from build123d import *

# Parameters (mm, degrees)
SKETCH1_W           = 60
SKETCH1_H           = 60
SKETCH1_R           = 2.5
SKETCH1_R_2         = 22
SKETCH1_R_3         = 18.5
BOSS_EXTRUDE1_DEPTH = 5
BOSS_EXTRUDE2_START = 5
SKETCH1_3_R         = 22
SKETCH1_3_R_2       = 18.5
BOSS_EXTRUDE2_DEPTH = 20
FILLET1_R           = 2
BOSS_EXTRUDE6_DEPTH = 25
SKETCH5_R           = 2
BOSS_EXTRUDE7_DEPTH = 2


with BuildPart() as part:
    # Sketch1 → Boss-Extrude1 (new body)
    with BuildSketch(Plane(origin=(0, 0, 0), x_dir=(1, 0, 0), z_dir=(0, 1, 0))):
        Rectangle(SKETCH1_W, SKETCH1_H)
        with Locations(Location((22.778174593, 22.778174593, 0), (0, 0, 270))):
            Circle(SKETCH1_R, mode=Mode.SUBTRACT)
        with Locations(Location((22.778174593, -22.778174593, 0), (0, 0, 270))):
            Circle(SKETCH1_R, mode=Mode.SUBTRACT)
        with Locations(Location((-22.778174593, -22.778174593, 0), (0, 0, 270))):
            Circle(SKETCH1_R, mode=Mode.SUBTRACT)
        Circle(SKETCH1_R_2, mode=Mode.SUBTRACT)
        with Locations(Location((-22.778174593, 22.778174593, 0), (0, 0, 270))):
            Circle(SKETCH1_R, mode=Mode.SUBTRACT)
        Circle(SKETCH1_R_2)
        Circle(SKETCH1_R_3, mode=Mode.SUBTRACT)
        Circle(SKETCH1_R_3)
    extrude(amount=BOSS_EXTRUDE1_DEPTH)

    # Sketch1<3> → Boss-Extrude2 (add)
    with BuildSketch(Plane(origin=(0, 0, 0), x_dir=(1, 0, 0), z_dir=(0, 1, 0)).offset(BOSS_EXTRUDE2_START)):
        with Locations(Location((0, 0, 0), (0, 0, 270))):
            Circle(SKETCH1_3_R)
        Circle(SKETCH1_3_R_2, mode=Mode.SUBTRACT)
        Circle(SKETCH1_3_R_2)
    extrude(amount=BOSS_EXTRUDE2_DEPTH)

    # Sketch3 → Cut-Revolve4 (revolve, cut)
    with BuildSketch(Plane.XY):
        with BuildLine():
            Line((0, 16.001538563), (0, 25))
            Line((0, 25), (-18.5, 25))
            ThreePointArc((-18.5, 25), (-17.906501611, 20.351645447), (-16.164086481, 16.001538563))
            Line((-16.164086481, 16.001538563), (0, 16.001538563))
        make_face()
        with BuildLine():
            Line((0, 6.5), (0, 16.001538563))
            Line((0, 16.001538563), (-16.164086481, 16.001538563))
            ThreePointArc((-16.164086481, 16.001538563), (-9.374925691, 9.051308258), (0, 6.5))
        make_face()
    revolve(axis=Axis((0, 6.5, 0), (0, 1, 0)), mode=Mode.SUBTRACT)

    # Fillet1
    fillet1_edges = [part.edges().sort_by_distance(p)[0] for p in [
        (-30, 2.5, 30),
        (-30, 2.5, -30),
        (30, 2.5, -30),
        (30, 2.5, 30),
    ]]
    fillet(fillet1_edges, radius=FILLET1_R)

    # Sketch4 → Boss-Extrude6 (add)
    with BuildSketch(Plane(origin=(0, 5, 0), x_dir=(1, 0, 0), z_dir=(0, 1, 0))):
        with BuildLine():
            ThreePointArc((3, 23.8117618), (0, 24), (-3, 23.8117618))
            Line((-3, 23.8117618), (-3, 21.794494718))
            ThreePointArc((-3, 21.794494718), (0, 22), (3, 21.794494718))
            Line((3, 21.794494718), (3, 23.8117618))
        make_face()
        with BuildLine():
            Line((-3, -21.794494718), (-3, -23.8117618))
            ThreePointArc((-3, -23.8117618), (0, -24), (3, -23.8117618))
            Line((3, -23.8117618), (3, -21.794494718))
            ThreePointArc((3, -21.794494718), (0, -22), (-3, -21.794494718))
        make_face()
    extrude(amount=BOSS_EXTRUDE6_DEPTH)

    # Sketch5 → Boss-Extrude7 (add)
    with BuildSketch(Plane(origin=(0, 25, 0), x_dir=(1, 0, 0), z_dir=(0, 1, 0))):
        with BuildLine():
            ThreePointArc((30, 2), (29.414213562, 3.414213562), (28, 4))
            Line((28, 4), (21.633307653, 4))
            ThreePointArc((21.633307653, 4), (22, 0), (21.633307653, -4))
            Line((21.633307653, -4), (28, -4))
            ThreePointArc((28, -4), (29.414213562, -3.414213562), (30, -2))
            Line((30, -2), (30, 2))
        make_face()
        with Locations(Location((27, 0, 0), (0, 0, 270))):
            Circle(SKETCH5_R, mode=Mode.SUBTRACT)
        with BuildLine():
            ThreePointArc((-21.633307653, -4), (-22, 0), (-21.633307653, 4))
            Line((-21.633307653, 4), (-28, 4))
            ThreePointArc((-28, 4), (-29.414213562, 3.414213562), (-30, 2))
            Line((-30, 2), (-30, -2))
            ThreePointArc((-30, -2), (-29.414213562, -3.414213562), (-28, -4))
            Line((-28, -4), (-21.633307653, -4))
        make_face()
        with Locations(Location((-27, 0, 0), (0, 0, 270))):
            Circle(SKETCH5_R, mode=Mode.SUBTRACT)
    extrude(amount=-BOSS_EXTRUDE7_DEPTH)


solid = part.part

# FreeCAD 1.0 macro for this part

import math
import FreeCAD as App
import Part
import Sketcher

V = App.Vector
Q = App.Units.Quantity


def edges_at(feature, points):
    """Names of the edges that pass closest to the given points."""
    edges = feature.Shape.Edges
    near = lambda p: min(range(len(edges)), key=lambda i: edges[i].distToShape(Part.Vertex(*p))[0])
    return sorted({f"Edge{near(p) + 1}" for p in points})


def add_polygon(sketch, points):
    """Adds a closed chain of lines whose ends are joined by coincident constraints."""
    first, n = sketch.GeometryCount, len(points)
    for a, b in zip(points, points[1:] + points[:1]):
        sketch.addGeometry(Part.LineSegment(App.Vector(*a, 0), App.Vector(*b, 0)), False)
    for i in range(n):
        sketch.addConstraint(Sketcher.Constraint("Coincident", first + i, 2, first + (i + 1) % n, 1))

doc = App.newDocument("Part")
body = doc.addObject("PartDesign::Body", "Body")

sketch1 = body.newObject("Sketcher::SketchObject", "Sketch")
sketch1.AttachmentSupport = (doc.getObject("XZ_Plane"), [""])
sketch1.MapMode = "FlatFace"
add_polygon(sketch1, [(-30, -30), (-30, 30), (30, 30), (30, -30)])
sketch1.addGeometry(Part.Circle(V(-22.8, 22.8, 0), V(0, 0, 1), 2.5), False)
sketch1.addGeometry(Part.Circle(V(22.8, 22.8, 0), V(0, 0, 1), 2.5), False)
sketch1.addGeometry(Part.Circle(V(-22.8, -22.8, 0), V(0, 0, 1), 2.5), False)
sketch1.addGeometry(Part.Circle(V(22.8, -22.8, 0), V(0, 0, 1), 2.5), False)
sketch1.addConstraint([
    Sketcher.Constraint("Vertical", 0),
    Sketcher.Constraint("Horizontal", 1),
    Sketcher.Constraint("Vertical", 2),
    Sketcher.Constraint("Horizontal", 3),
    Sketcher.Constraint("Equal", 4, 5),
    Sketcher.Constraint("Equal", 5, 6),
    Sketcher.Constraint("Equal", 6, 7),
    Sketcher.Constraint("Symmetric", 5, 3, 6, 3, -1, 1),
    Sketcher.Constraint("Symmetric", 4, 3, 7, 3, -1, 1),
    Sketcher.Constraint("Symmetric", 0, 2, 2, 2, -1, 1),
    Sketcher.Constraint("Symmetric", 4, 3, 5, 3, -2),
    Sketcher.Constraint("Equal", 3, 0),
    Sketcher.Constraint("Diameter", 4, Q("5 mm")),
    Sketcher.Constraint("DistanceX", 1, 1, 1, 2, Q("60 mm")),
    Sketcher.Constraint("DistanceX", 4, 3, 5, 3, Q("45.556349 mm")),
    Sketcher.Constraint("DistanceY", 6, 3, 4, 3, Q("45.556349 mm")),
])
pad1 = body.newObject("PartDesign::Pad", "Pad")
pad1.Profile = sketch1
pad1.Length = 5
pad1.Reversed = True

sketch2 = body.newObject("Sketcher::SketchObject", "Sketch001")
sketch2.AttachmentSupport = (doc.getObject("XZ_Plane"), [""])
sketch2.MapMode = "FlatFace"
sketch2.AttachmentOffset = App.Placement(V(0, 0, -5), App.Rotation())
sketch2.addGeometry(Part.Circle(V(0, 0, 0), V(0, 0, 1), 22), False)
sketch2.addConstraint([
    Sketcher.Constraint("Coincident", 0, 3, -1, 1),
    Sketcher.Constraint("Diameter", 0, Q("44 mm")),
])
pad2 = body.newObject("PartDesign::Pad", "Pad001")
pad2.Profile = sketch2
pad2.Length = 20
pad2.Reversed = True

sketch3 = body.newObject("Sketcher::SketchObject", "Sketch002")
sketch3.AttachmentSupport = (doc.getObject("XY_Plane"), [""])
sketch3.MapMode = "FlatFace"
sketch3.addGeometry([
    Part.LineSegment(V(0, 25, 0), V(-18, 25, 0)),
    Part.ArcOfCircle(Part.Circle(V(0, 25, 0), V(0, 0, 1), 19), math.radians(-180), math.radians(-151)),
    Part.ArcOfCircle(Part.Circle(V(0, 25, 0), V(0, 0, 1), 19), math.radians(-151), math.radians(-90)),
    Part.LineSegment(V(0, 6, 0), V(0, 25, 0)),
], False)
sketch3.addConstraint([
    Sketcher.Constraint("Coincident", 0, 2, 1, 1),
    Sketcher.Constraint("Tangent", 1, 2, 2, 1),
    Sketcher.Constraint("Coincident", 2, 2, 3, 1),
    Sketcher.Constraint("Coincident", 3, 2, 0, 1),
    Sketcher.Constraint("Horizontal", 0),
    Sketcher.Constraint("Vertical", 3),
    Sketcher.Constraint("Coincident", 3, 2, 1, 3),
    Sketcher.Constraint("Equal", 1, 2),
    Sketcher.Constraint("PointOnObject", 1, 3, -2),
    Sketcher.Constraint("Radius", 1, Q("18.5 mm")),
    Sketcher.Constraint("DistanceY", -1, 1, 1, 3, Q("25 mm")),
    Sketcher.Constraint("DistanceY", -1, 1, 1, 2, Q("16.001539 mm")),
])
groove = body.newObject("PartDesign::Groove", "Groove")
groove.Profile = sketch3
groove.ReferenceAxis = (sketch3, ["V_Axis"])
groove.Angle = 360
doc.recompute()

fillet = body.newObject("PartDesign::Fillet", "Fillet")
fillet.Base = (groove, edges_at(groove, [
    (-30, 2.5, 30),
    (-30, 2.5, -30),
    (30, 2.5, -30),
    (30, 2.5, 30),
]))
fillet.Radius = 2

sketch4 = body.newObject("Sketcher::SketchObject", "Sketch003")
sketch4.AttachmentSupport = (doc.getObject("XZ_Plane"), [""])
sketch4.MapMode = "FlatFace"
sketch4.AttachmentOffset = App.Placement(V(0, 0, -5), App.Rotation())
sketch4.addGeometry([
    Part.ArcOfCircle(Part.Circle(V(0, 0, 0), V(0, 0, 1), 24), math.radians(-97.18), math.radians(-82.82)),
    Part.LineSegment(V(-3, -23.8, 0), V(-3, -21.8, 0)),
    Part.ArcOfCircle(Part.Circle(V(0, 0, 0), V(0, 0, 1), 22), math.radians(-97.84), math.radians(-82.16)),
    Part.LineSegment(V(3, -21.8, 0), V(3, -23.8, 0)),
    Part.LineSegment(V(-3, 21.8, 0), V(-3, 23.8, 0)),
    Part.ArcOfCircle(Part.Circle(V(0, 0, 0), V(0, 0, 1), 24), math.radians(82.82), math.radians(97.18)),
    Part.LineSegment(V(3, 23.8, 0), V(3, 21.8, 0)),
    Part.ArcOfCircle(Part.Circle(V(0, 0, 0), V(0, 0, 1), 22), math.radians(82.16), math.radians(97.84)),
], False)
sketch4.addConstraint([
    Sketcher.Constraint("Coincident", 0, 1, 1, 1),
    Sketcher.Constraint("Coincident", 1, 2, 2, 1),
    Sketcher.Constraint("Coincident", 2, 2, 3, 1),
    Sketcher.Constraint("Coincident", 3, 2, 0, 2),
    Sketcher.Constraint("Coincident", 4, 2, 5, 2),
    Sketcher.Constraint("Coincident", 5, 1, 6, 1),
    Sketcher.Constraint("Coincident", 6, 2, 7, 1),
    Sketcher.Constraint("Coincident", 7, 2, 4, 1),
    Sketcher.Constraint("Vertical", 1),
    Sketcher.Constraint("Vertical", 3),
    Sketcher.Constraint("Vertical", 4),
    Sketcher.Constraint("Vertical", 6),
    Sketcher.Constraint("Coincident", 0, 3, -1, 1),
    Sketcher.Constraint("Coincident", 2, 3, -1, 1),
    Sketcher.Constraint("Coincident", 5, 3, -1, 1),
    Sketcher.Constraint("Coincident", 7, 3, -1, 1),
    Sketcher.Constraint("Equal", 0, 5),
    Sketcher.Constraint("Equal", 2, 7),
    Sketcher.Constraint("Horizontal", 1, 2, 2, 2),
    Sketcher.Constraint("Horizontal", 4, 2, 5, 1),
    Sketcher.Constraint("Vertical", 1, 2, 4, 2),
    Sketcher.Constraint("Radius", 0, Q("24 mm")),
    Sketcher.Constraint("Radius", 2, Q("22 mm")),
    Sketcher.Constraint("DistanceX", 0, 1, -1, 1, Q("3 mm")),
])
pad3 = body.newObject("PartDesign::Pad", "Pad002")
pad3.Profile = sketch4
pad3.Length = 25
pad3.Reversed = True

sketch5 = body.newObject("Sketcher::SketchObject", "Sketch004")
sketch5.AttachmentSupport = (doc.getObject("XZ_Plane"), [""])
sketch5.MapMode = "FlatFace"
sketch5.AttachmentOffset = App.Placement(V(0, 0, -25), App.Rotation())
sketch5.addGeometry([
    Part.ArcOfCircle(Part.Circle(V(28, -2, 0), V(0, 0, 1), 2), math.radians(-90), math.radians(0)),
    Part.LineSegment(V(28, -4, 0), V(21.6, -4, 0)),
    Part.ArcOfCircle(Part.Circle(V(0, 0, 0), V(0, 0, 1), 22), math.radians(-10), math.radians(10)),
    Part.LineSegment(V(21.6, 4, 0), V(28, 4, 0)),
    Part.ArcOfCircle(Part.Circle(V(28, 2, 0), V(0, 0, 1), 2), math.radians(0), math.radians(90)),
    Part.LineSegment(V(30, 2, 0), V(30, -2, 0)),
    Part.Circle(V(27, 0, 0), V(0, 0, 1), 2),
    Part.ArcOfCircle(Part.Circle(V(0, 0, 0), V(0, 0, 1), 22), math.radians(170), math.radians(190)),
    Part.LineSegment(V(-21.6, -4, 0), V(-28, -4, 0)),
    Part.ArcOfCircle(Part.Circle(V(-28, -2, 0), V(0, 0, 1), 2), math.radians(-180), math.radians(-90)),
    Part.LineSegment(V(-30, -2, 0), V(-30, 2, 0)),
    Part.ArcOfCircle(Part.Circle(V(-28, 2, 0), V(0, 0, 1), 2), math.radians(90), math.radians(180)),
    Part.LineSegment(V(-28, 4, 0), V(-21.6, 4, 0)),
    Part.Circle(V(-27, 0, 0), V(0, 0, 1), 2),
], False)
sketch5.addConstraint([
    Sketcher.Constraint("Tangent", 0, 1, 1, 1),
    Sketcher.Constraint("Coincident", 1, 2, 2, 1),
    Sketcher.Constraint("Coincident", 2, 2, 3, 1),
    Sketcher.Constraint("Tangent", 3, 2, 4, 2),
    Sketcher.Constraint("Tangent", 4, 1, 5, 1),
    Sketcher.Constraint("Tangent", 5, 2, 0, 2),
    Sketcher.Constraint("Coincident", 7, 2, 8, 1),
    Sketcher.Constraint("Tangent", 8, 2, 9, 2),
    Sketcher.Constraint("Tangent", 9, 1, 10, 1),
    Sketcher.Constraint("Tangent", 10, 2, 11, 2),
    Sketcher.Constraint("Tangent", 11, 1, 12, 1),
    Sketcher.Constraint("Coincident", 12, 2, 7, 1),
    Sketcher.Constraint("Horizontal", 1),
    Sketcher.Constraint("Horizontal", 3),
    Sketcher.Constraint("Vertical", 5),
    Sketcher.Constraint("Horizontal", 8),
    Sketcher.Constraint("Vertical", 10),
    Sketcher.Constraint("Horizontal", 12),
    Sketcher.Constraint("Coincident", 2, 3, -1, 1),
    Sketcher.Constraint("Coincident", 7, 3, -1, 1),
    Sketcher.Constraint("Equal", 0, 4),
    Sketcher.Constraint("Equal", 4, 6),
    Sketcher.Constraint("Equal", 2, 7),
    Sketcher.Constraint("Equal", 6, 9),
    Sketcher.Constraint("Equal", 9, 11),
    Sketcher.Constraint("Equal", 11, 13),
    Sketcher.Constraint("Symmetric", 4, 3, 9, 3, -1, 1),
    Sketcher.Constraint("Symmetric", 6, 3, 13, 3, -1, 1),
    Sketcher.Constraint("PointOnObject", 6, 3, -1),
    Sketcher.Constraint("Horizontal", 0, 3, 9, 3),
    Sketcher.Constraint("Horizontal", 4, 3, 11, 3),
    Sketcher.Constraint("Diameter", 6, Q("4 mm")),
    Sketcher.Constraint("Radius", 2, Q("22 mm")),
    Sketcher.Constraint("DistanceY", 5, 2, 5, 1, Q("4 mm")),
    Sketcher.Constraint("DistanceX", -1, 1, 0, 3, Q("28 mm")),
    Sketcher.Constraint("DistanceX", -1, 1, 6, 3, Q("27 mm")),
])
pad4 = body.newObject("PartDesign::Pad", "Pad003")
pad4.Profile = sketch5
pad4.Length = 2

doc.recompute()
